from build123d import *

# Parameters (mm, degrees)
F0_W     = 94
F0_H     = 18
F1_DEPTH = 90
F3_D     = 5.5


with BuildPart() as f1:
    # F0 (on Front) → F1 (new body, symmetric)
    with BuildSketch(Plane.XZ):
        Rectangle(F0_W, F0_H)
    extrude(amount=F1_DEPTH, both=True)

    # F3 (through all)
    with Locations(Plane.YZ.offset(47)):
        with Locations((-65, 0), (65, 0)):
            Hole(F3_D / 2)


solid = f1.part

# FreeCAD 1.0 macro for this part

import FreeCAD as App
import Part
import Sketcher

V = App.Vector
Q = App.Units.Quantity

doc = App.newDocument("Part")
body = doc.addObject("PartDesign::Body", "Body")

# Sketch on XZ plane
sketch1 = body.newObject("Sketcher::SketchObject", "Sketch")
sketch1.AttachmentSupport = (doc.getObject("XZ_Plane"), [""])
sketch1.MapMode = "FlatFace"
sketch1.addGeometry([
    Part.LineSegment(V(-47, 9, 0), V(-47, -9, 0)),
    Part.LineSegment(V(-47, -9, 0), V(47, -9, 0)),
    Part.LineSegment(V(47, -9, 0), V(47, 9, 0)),
    Part.LineSegment(V(47, 9, 0), V(-47, 9, 0)),
], False)
sketch1.addConstraint([
    Sketcher.Constraint("Coincident", 0, 2, 1, 1),
    Sketcher.Constraint("Coincident", 1, 2, 2, 1),
    Sketcher.Constraint("Coincident", 2, 2, 3, 1),
    Sketcher.Constraint("Coincident", 3, 2, 0, 1),
    Sketcher.Constraint("Vertical", 0),
    Sketcher.Constraint("Horizontal", 1),
    Sketcher.Constraint("Vertical", 2),
    Sketcher.Constraint("Horizontal", 3),
    Sketcher.Constraint("Symmetric", 0, 2, 2, 2, -1, 1),
    Sketcher.Constraint("DistanceX", 1, 1, 1, 2, Q("94 mm")),
    Sketcher.Constraint("DistanceY", 0, 2, 0, 1, Q("18 mm")),
])
pad1 = body.newObject("PartDesign::Pad", "Pad")
pad1.Profile = sketch1
pad1.Length = 180
pad1.Midplane = True

# Sketch on YZ plane
sketch2 = body.newObject("Sketcher::SketchObject", "Sketch001")
sketch2.AttachmentSupport = (doc.getObject("YZ_Plane"), [""])
sketch2.MapMode = "FlatFace"
sketch2.AttachmentOffset = App.Placement(V(0, 0, 47), App.Rotation())
sketch2.addGeometry([
    Part.Circle(V(-65, 0, 0), V(0, 0, 1), 2.75),
    Part.Circle(V(65, 0, 0), V(0, 0, 1), 2.75),
], False)
sketch2.addConstraint([
    Sketcher.Constraint("Equal", 0, 1),
    Sketcher.Constraint("Symmetric", 0, 3, 1, 3, -1, 1),
    Sketcher.Constraint("PointOnObject", 0, 3, -1),
    Sketcher.Constraint("Diameter", 0, Q("5.5 mm")),
    Sketcher.Constraint("DistanceX", 0, 3, -1, 1, Q("65 mm")),
])
doc.recompute()
hole = body.newObject("PartDesign::Hole", "Hole")
hole.Profile = sketch2
hole.ThreadType = "None"
hole.Diameter = 5.5
hole.DepthType = "ThroughAll"

doc.recompute()
